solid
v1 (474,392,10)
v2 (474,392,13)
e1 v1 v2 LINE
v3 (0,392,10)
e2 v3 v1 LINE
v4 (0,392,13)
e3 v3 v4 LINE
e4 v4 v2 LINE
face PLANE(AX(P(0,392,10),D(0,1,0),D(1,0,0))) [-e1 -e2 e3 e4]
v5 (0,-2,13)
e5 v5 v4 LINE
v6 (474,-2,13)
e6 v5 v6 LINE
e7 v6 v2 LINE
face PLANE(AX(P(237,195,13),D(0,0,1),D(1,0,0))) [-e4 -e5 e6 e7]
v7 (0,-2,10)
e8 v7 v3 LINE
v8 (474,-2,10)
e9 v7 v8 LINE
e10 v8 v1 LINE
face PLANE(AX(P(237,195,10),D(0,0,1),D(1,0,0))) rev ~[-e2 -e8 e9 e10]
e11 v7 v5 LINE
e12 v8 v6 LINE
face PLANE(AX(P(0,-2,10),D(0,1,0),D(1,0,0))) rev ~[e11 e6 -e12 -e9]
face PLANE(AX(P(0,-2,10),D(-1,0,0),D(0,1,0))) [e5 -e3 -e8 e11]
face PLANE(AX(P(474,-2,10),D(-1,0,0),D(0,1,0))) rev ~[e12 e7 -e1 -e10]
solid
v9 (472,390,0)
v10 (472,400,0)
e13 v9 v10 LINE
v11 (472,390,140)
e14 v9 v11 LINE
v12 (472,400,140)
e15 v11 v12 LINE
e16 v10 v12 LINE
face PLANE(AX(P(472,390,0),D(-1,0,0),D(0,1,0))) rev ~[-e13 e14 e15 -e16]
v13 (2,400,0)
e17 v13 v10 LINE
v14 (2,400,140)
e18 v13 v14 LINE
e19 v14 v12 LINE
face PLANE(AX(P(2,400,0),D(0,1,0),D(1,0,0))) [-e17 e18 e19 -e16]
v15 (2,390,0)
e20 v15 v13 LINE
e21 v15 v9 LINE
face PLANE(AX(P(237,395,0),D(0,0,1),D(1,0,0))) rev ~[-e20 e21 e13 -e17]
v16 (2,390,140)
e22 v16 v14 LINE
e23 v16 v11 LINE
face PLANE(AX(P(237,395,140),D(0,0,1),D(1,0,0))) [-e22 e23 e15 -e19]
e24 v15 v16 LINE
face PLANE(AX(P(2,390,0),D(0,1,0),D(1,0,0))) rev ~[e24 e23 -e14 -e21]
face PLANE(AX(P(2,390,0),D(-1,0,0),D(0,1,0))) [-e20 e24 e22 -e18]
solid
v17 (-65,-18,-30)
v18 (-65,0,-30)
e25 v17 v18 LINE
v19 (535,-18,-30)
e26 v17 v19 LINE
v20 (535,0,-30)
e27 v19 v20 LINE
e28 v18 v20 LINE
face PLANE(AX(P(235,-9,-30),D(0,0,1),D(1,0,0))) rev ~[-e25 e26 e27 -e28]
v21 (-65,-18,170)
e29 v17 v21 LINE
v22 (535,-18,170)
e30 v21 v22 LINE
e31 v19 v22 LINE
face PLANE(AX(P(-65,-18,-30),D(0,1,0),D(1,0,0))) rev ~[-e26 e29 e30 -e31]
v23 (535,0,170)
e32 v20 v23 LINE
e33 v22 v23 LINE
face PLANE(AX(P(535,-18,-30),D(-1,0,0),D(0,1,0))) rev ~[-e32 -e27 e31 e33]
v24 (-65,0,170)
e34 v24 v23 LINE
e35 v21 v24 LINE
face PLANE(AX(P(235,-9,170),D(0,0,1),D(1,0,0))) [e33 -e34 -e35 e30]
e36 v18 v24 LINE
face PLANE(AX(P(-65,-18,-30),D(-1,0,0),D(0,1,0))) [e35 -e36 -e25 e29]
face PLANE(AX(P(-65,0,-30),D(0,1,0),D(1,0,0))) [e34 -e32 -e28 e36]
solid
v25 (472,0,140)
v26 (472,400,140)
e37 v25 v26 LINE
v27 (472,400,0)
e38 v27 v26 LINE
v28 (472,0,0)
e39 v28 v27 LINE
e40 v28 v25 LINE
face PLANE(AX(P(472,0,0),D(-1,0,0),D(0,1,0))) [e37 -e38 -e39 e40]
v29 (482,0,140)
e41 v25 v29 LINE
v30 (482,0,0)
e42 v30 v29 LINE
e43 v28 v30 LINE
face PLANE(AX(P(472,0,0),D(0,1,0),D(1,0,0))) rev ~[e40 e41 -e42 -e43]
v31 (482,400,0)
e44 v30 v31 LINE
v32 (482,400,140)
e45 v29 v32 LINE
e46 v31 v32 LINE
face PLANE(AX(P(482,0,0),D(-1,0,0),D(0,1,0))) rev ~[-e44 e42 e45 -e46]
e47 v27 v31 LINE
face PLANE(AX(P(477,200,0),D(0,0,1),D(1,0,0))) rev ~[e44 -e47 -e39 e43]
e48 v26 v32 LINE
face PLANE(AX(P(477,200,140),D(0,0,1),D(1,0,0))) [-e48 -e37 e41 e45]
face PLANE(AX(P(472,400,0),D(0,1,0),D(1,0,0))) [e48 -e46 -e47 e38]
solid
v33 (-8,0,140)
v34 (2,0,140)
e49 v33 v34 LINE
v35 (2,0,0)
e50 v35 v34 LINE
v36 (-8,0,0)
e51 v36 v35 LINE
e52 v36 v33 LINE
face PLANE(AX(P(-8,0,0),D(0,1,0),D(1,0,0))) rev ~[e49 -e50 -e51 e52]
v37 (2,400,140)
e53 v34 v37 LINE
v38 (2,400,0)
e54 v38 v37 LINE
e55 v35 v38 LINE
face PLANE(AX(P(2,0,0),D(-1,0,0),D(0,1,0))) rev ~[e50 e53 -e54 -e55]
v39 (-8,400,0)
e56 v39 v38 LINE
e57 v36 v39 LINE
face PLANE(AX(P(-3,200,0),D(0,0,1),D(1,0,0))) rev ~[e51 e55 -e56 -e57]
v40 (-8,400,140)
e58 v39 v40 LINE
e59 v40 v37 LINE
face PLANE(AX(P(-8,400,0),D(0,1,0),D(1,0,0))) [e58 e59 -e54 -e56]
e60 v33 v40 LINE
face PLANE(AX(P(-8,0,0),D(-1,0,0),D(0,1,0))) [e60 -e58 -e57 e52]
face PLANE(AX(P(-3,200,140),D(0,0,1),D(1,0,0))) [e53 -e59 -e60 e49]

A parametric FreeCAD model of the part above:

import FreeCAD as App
import Part
import Sketcher
Q = App.Units.Quantity

doc = App.newDocument("Part")
body = doc.addObject("PartDesign::Body", "Body")

# Sketch on XY plane
sketch1 = doc.addObject("Sketcher::SketchObject", "Sketch")
body.addObject(sketch1)
sketch1.AttachmentSupport = (doc.XY_Plane, [""])
sketch1.MapMode = "FlatFace"
sketch1.AttachmentOffset = App.Placement(App.Vector(0, 0, 10), App.Rotation())
sketch1.addGeometry(Part.LineSegment(App.Vector(0, 392, 0), App.Vector(0, -2, 0)), False)
sketch1.addGeometry(Part.LineSegment(App.Vector(0, -2, 0), App.Vector(474, -2, 0)), False)
sketch1.addGeometry(Part.LineSegment(App.Vector(474, -2, 0), App.Vector(474, 392, 0)), False)
sketch1.addGeometry(Part.LineSegment(App.Vector(474, 392, 0), App.Vector(0, 392, 0)), False)
sketch1.addConstraint(Sketcher.Constraint("Coincident", 0, 2, 1, 1))
sketch1.addConstraint(Sketcher.Constraint("Coincident", 1, 2, 2, 1))
sketch1.addConstraint(Sketcher.Constraint("Coincident", 2, 2, 3, 1))
sketch1.addConstraint(Sketcher.Constraint("Coincident", 3, 2, 0, 1))
sketch1.addConstraint(Sketcher.Constraint("Vertical", 0))
sketch1.addConstraint(Sketcher.Constraint("Horizontal", 1))
sketch1.addConstraint(Sketcher.Constraint("Vertical", 2))
sketch1.addConstraint(Sketcher.Constraint("Horizontal", 3))
sketch1.addConstraint(Sketcher.Constraint("PointOnObject", 0, 2, -2))
sketch1.addConstraint(Sketcher.Constraint("DistanceX", 1, 1, 1, 2, Q("474 mm")))
sketch1.addConstraint(Sketcher.Constraint("DistanceY", 0, 2, 0, 1, Q("394 mm")))
sketch1.addConstraint(Sketcher.Constraint("DistanceY", 0, 2, -1, 1, Q("2 mm")))
pad1 = doc.addObject("PartDesign::Pad", "Pad")
body.addObject(pad1)
pad1.Profile = sketch1
pad1.Length = 3
body2 = doc.addObject("PartDesign::Body", "Body001")

# Sketch on XY plane
sketch2 = doc.addObject("Sketcher::SketchObject", "Sketch001")
body2.addObject(sketch2)
sketch2.AttachmentSupport = (doc.getObject("XY_Plane001"), [""])
sketch2.MapMode = "FlatFace"
sketch2.addGeometry(Part.LineSegment(App.Vector(-8, 400, 0), App.Vector(-8, 0, 0)), False)
sketch2.addGeometry(Part.LineSegment(App.Vector(-8, 0, 0), App.Vector(2, 0, 0)), False)
sketch2.addGeometry(Part.LineSegment(App.Vector(2, 0, 0), App.Vector(2, 400, 0)), False)
sketch2.addGeometry(Part.LineSegment(App.Vector(2, 400, 0), App.Vector(-8, 400, 0)), False)
sketch2.addConstraint(Sketcher.Constraint("Coincident", 0, 2, 1, 1))
sketch2.addConstraint(Sketcher.Constraint("Coincident", 1, 2, 2, 1))
sketch2.addConstraint(Sketcher.Constraint("Coincident", 2, 2, 3, 1))
sketch2.addConstraint(Sketcher.Constraint("Coincident", 3, 2, 0, 1))
sketch2.addConstraint(Sketcher.Constraint("Vertical", 0))
sketch2.addConstraint(Sketcher.Constraint("Horizontal", 1))
sketch2.addConstraint(Sketcher.Constraint("Vertical", 2))
sketch2.addConstraint(Sketcher.Constraint("Horizontal", 3))
sketch2.addConstraint(Sketcher.Constraint("PointOnObject", 0, 2, -1))
sketch2.addConstraint(Sketcher.Constraint("DistanceX", 1, 1, 1, 2, Q("10 mm")))
sketch2.addConstraint(Sketcher.Constraint("DistanceY", 0, 2, 0, 1, Q("400 mm")))
sketch2.addConstraint(Sketcher.Constraint("DistanceX", 0, 2, -1, 1, Q("8 mm")))
pad2 = doc.addObject("PartDesign::Pad", "Pad001")
body2.addObject(pad2)
pad2.Profile = sketch2
pad2.Length = 140
body3 = doc.addObject("PartDesign::Body", "Body002")

# Sketch on XY plane
sketch3 = doc.addObject("Sketcher::SketchObject", "Sketch002")
body3.addObject(sketch3)
sketch3.AttachmentSupport = (doc.getObject("XY_Plane002"), [""])
sketch3.MapMode = "FlatFace"
sketch3.addGeometry(Part.LineSegment(App.Vector(472, 400, 0), App.Vector(472, 0, 0)), False)
sketch3.addGeometry(Part.LineSegment(App.Vector(472, 0, 0), App.Vector(482, 0, 0)), False)
sketch3.addGeometry(Part.LineSegment(App.Vector(482, 0, 0), App.Vector(482, 400, 0)), False)
sketch3.addGeometry(Part.LineSegment(App.Vector(482, 400, 0), App.Vector(472, 400, 0)), False)
sketch3.addConstraint(Sketcher.Constraint("Coincident", 0, 2, 1, 1))
sketch3.addConstraint(Sketcher.Constraint("Coincident", 1, 2, 2, 1))
sketch3.addConstraint(Sketcher.Constraint("Coincident", 2, 2, 3, 1))
sketch3.addConstraint(Sketcher.Constraint("Coincident", 3, 2, 0, 1))
sketch3.addConstraint(Sketcher.Constraint("Vertical", 0))
sketch3.addConstraint(Sketcher.Constraint("Horizontal", 1))
sketch3.addConstraint(Sketcher.Constraint("Vertical", 2))
sketch3.addConstraint(Sketcher.Constraint("Horizontal", 3))
sketch3.addConstraint(Sketcher.Constraint("PointOnObject", 0, 2, -1))
sketch3.addConstraint(Sketcher.Constraint("DistanceX", 1, 1, 1, 2, Q("10 mm")))
sketch3.addConstraint(Sketcher.Constraint("DistanceY", 0, 2, 0, 1, Q("400 mm")))
sketch3.addConstraint(Sketcher.Constraint("DistanceX", -1, 1, 0, 2, Q("472 mm")))
pad3 = doc.addObject("PartDesign::Pad", "Pad002")
body3.addObject(pad3)
pad3.Profile = sketch3
pad3.Length = 140
body4 = doc.addObject("PartDesign::Body", "Body003")

# Sketch on XY plane
sketch4 = doc.addObject("Sketcher::SketchObject", "Sketch003")
body4.addObject(sketch4)
sketch4.AttachmentSupport = (doc.getObject("XY_Plane003"), [""])
sketch4.MapMode = "FlatFace"
sketch4.addGeometry(Part.LineSegment(App.Vector(2, 400, 0), App.Vector(2, 390, 0)), False)
sketch4.addGeometry(Part.LineSegment(App.Vector(2, 390, 0), App.Vector(472, 390, 0)), False)
sketch4.addGeometry(Part.LineSegment(App.Vector(472, 390, 0), App.Vector(472, 400, 0)), False)
sketch4.addGeometry(Part.LineSegment(App.Vector(472, 400, 0), App.Vector(2, 400, 0)), False)
sketch4.addConstraint(Sketcher.Constraint("Coincident", 0, 2, 1, 1))
sketch4.addConstraint(Sketcher.Constraint("Coincident", 1, 2, 2, 1))
sketch4.addConstraint(Sketcher.Constraint("Coincident", 2, 2, 3, 1))
sketch4.addConstraint(Sketcher.Constraint("Coincident", 3, 2, 0, 1))
sketch4.addConstraint(Sketcher.Constraint("Vertical", 0))
sketch4.addConstraint(Sketcher.Constraint("Horizontal", 1))
sketch4.addConstraint(Sketcher.Constraint("Vertical", 2))
sketch4.addConstraint(Sketcher.Constraint("Horizontal", 3))
sketch4.addConstraint(Sketcher.Constraint("DistanceX", 1, 1, 1, 2, Q("470 mm")))
sketch4.addConstraint(Sketcher.Constraint("DistanceY", 0, 2, 0, 1, Q("10 mm")))
sketch4.addConstraint(Sketcher.Constraint("DistanceX", -1, 1, 0, 2, Q("2 mm")))
sketch4.addConstraint(Sketcher.Constraint("DistanceY", -1, 1, 0, 2, Q("390 mm")))
pad4 = doc.addObject("PartDesign::Pad", "Pad003")
body4.addObject(pad4)
pad4.Profile = sketch4
pad4.Length = 140
body5 = doc.addObject("PartDesign::Body", "Body004")

# Sketch on XY plane
sketch5 = doc.addObject("Sketcher::SketchObject", "Sketch004")
body5.addObject(sketch5)
sketch5.AttachmentSupport = (doc.getObject("XY_Plane004"), [""])
sketch5.MapMode = "FlatFace"
sketch5.AttachmentOffset = App.Placement(App.Vector(0, 0, -30), App.Rotation())
sketch5.addGeometry(Part.LineSegment(App.Vector(-65, 0, 0), App.Vector(-65, -18, 0)), False)
sketch5.addGeometry(Part.LineSegment(App.Vector(-65, -18, 0), App.Vector(535, -18, 0)), False)
sketch5.addGeometry(Part.LineSegment(App.Vector(535, -18, 0), App.Vector(535, 0, 0)), False)
sketch5.addGeometry(Part.LineSegment(App.Vector(535, 0, 0), App.Vector(-65, 0, 0)), False)
sketch5.addConstraint(Sketcher.Constraint("Coincident", 0, 2, 1, 1))
sketch5.addConstraint(Sketcher.Constraint("Coincident", 1, 2, 2, 1))
sketch5.addConstraint(Sketcher.Constraint("Coincident", 2, 2, 3, 1))
sketch5.addConstraint(Sketcher.Constraint("Coincident", 3, 2, 0, 1))
sketch5.addConstraint(Sketcher.Constraint("Vertical", 0))
sketch5.addConstraint(Sketcher.Constraint("Horizontal", 1))
sketch5.addConstraint(Sketcher.Constraint("Vertical", 2))
sketch5.addConstraint(Sketcher.Constraint("Horizontal", 3))
sketch5.addConstraint(Sketcher.Constraint("PointOnObject", 2, 2, -1))
sketch5.addConstraint(Sketcher.Constraint("DistanceX", 1, 1, 1, 2, Q("600 mm")))
sketch5.addConstraint(Sketcher.Constraint("DistanceY", 0, 2, 0, 1, Q("18 mm")))
sketch5.addConstraint(Sketcher.Constraint("DistanceX", 0, 2, -1, 1, Q("65 mm")))
pad5 = doc.addObject("PartDesign::Pad", "Pad004")
body5.addObject(pad5)
pad5.Profile = sketch5
pad5.Length = 200

doc.recompute()
